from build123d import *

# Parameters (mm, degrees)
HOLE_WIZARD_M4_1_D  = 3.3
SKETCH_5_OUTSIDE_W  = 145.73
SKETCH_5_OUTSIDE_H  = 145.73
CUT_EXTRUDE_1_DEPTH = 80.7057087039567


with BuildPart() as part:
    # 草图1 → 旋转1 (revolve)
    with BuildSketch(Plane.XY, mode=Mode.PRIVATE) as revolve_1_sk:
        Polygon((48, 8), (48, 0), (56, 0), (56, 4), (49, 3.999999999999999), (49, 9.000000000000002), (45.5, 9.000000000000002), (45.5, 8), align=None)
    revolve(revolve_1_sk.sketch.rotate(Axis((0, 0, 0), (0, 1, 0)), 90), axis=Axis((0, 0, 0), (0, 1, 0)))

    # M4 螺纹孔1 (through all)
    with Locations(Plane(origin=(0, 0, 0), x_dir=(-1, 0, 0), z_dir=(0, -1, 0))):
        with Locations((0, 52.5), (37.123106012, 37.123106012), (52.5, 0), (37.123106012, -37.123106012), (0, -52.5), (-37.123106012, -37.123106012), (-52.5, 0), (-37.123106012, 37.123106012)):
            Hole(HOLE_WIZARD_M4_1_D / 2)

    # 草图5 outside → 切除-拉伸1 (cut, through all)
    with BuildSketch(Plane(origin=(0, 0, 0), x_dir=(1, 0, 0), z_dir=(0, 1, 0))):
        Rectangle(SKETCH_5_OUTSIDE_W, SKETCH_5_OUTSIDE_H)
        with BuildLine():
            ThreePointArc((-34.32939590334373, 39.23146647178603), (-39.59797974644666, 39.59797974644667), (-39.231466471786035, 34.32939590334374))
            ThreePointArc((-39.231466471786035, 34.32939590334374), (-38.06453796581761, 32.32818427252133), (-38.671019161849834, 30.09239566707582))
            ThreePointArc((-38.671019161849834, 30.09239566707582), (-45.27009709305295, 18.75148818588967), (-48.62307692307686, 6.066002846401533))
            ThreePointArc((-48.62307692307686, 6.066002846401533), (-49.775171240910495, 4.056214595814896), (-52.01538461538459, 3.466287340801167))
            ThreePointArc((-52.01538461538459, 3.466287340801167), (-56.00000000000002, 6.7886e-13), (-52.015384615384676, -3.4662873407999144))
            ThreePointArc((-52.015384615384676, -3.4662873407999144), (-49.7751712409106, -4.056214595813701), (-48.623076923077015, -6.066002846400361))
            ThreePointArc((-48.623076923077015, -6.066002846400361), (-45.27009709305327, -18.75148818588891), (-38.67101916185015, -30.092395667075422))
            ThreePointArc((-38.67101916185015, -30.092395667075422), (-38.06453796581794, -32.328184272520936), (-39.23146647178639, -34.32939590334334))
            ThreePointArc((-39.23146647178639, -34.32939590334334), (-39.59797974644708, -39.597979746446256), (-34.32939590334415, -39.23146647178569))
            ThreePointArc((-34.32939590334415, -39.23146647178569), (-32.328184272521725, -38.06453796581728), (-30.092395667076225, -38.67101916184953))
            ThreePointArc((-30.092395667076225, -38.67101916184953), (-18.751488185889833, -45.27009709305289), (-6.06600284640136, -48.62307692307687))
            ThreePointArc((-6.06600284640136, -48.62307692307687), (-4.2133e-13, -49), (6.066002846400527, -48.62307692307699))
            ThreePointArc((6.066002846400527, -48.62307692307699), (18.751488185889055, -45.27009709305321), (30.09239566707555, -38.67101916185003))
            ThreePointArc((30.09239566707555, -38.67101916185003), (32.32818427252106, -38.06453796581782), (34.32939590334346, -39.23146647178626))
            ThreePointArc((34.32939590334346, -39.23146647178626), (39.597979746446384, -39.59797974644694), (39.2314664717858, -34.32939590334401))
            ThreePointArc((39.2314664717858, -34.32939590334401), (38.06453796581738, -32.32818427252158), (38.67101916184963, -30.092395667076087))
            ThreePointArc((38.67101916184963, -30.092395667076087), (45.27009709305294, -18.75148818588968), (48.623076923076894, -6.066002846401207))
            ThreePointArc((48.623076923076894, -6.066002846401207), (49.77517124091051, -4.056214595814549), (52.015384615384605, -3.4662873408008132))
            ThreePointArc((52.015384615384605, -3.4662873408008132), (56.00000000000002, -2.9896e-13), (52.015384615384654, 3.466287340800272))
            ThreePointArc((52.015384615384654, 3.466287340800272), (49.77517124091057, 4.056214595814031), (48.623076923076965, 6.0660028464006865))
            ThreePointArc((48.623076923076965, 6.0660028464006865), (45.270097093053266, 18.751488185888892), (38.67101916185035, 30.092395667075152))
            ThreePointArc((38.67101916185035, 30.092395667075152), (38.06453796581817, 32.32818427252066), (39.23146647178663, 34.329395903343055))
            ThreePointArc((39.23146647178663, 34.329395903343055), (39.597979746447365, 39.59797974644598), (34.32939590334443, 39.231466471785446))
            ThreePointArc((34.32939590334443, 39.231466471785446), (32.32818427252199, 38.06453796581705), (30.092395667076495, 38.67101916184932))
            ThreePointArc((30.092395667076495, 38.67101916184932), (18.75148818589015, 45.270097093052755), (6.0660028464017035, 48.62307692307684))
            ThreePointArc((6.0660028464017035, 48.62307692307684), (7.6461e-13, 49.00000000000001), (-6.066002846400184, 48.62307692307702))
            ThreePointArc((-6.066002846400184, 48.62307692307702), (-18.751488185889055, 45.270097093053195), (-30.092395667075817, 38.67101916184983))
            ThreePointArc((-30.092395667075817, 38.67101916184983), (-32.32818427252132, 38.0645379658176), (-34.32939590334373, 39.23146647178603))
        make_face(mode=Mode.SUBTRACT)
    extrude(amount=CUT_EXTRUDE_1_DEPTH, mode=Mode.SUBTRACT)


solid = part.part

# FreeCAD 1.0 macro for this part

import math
import FreeCAD as App
import Part
import Sketcher

V = App.Vector
Q = App.Units.Quantity


def add_polygon(sketch, points):
    """Adds a closed chain of lines whose ends are joined by coincident constraints."""
    first, n = sketch.GeometryCount, len(points)
    for a, b in zip(points, points[1:] + points[:1]):
        sketch.addGeometry(Part.LineSegment(App.Vector(*a, 0), App.Vector(*b, 0)), False)
    for i in range(n):
        sketch.addConstraint(Sketcher.Constraint("Coincident", first + i, 2, first + (i + 1) % n, 1))

doc = App.newDocument("Part")
params = doc.addObject("Spreadsheet::Sheet", "Params")
for row, (alias, value) in enumerate([
    ("sketch1_width", "8 mm"),
    ("sketch1_width2", "7 mm"),
    ("sketch1_height", "4 mm"),
    ("sketch1_height2", "5 mm"),
    ("sketch1_width3", "3.5 mm"),
    ("revolution_angle", "360 deg"),
    ("sketch2_diameter", "3.3 mm"),
    ("hole_diameter", "3.3 mm"),
    ("sketch3_radius", "3 mm"),
    ("sketch3_radius2", "49 mm"),
    ("sketch3_radius3", "3.5 mm"),
    ("sketch3_width", "145.73 mm"),
], start=1):
    params.set(f"A{row}", alias)
    params.set(f"B{row}", "=" + value)
    params.setAlias(f"B{row}", alias)

body = doc.addObject("PartDesign::Body", "Body")

sketch1 = body.newObject("Sketcher::SketchObject", "Sketch")
sketch1.AttachmentSupport = (doc.getObject("XY_Plane"), [""])
sketch1.MapMode = "FlatFace"
add_polygon(sketch1, [(48, 8), (48, 0), (56, 0), (56, 4), (49, 4), (49, 9), (45.5, 9), (45.5, 8)])
sketch1.addConstraint(Sketcher.Constraint("Vertical", 0))
sketch1.addConstraint(Sketcher.Constraint("Horizontal", 1))
sketch1.addConstraint(Sketcher.Constraint("Vertical", 2))
sketch1.addConstraint(Sketcher.Constraint("Horizontal", 3))
sketch1.addConstraint(Sketcher.Constraint("Vertical", 4))
sketch1.addConstraint(Sketcher.Constraint("Horizontal", 5))
sketch1.addConstraint(Sketcher.Constraint("Vertical", 6))
sketch1.addConstraint(Sketcher.Constraint("Horizontal", 7))
sketch1.addConstraint(Sketcher.Constraint("PointOnObject", 0, 2, -1))
sketch1.addConstraint(Sketcher.Constraint("Equal", 1, 0))
sketch1.addConstraint(Sketcher.Constraint("DistanceX", 1, 1, 1, 2, Q("8 mm")))
sketch1.addConstraint(Sketcher.Constraint("DistanceX", 3, 2, 3, 1, Q("7 mm")))
sketch1.addConstraint(Sketcher.Constraint("DistanceY", 2, 1, 2, 2, Q("4 mm")))
sketch1.addConstraint(Sketcher.Constraint("DistanceY", 4, 1, 4, 2, Q("5 mm")))
sketch1.addConstraint(Sketcher.Constraint("DistanceX", 5, 2, 5, 1, Q("3.5 mm")))
sketch1.addConstraint(Sketcher.Constraint("DistanceX", -1, 1, 0, 2, Q("48 mm")))
sketch1.setExpression("Constraints[18]", "Params.sketch1_width")
sketch1.setExpression("Constraints[19]", "Params.sketch1_width2")
sketch1.setExpression("Constraints[20]", "Params.sketch1_height")
sketch1.setExpression("Constraints[21]", "Params.sketch1_height2")
sketch1.setExpression("Constraints[22]", "Params.sketch1_width3")
revolution = body.newObject("PartDesign::Revolution", "Revolution")
revolution.Profile = sketch1
revolution.ReferenceAxis = (sketch1, ["V_Axis"])
revolution.setExpression("Angle", "Params.revolution_angle")

sketch2 = body.newObject("Sketcher::SketchObject", "Sketch001")
sketch2.AttachmentSupport = (doc.getObject("XZ_Plane"), [""])
sketch2.MapMode = "FlatFace"
sketch2.addGeometry(Part.Circle(V(0, -52.5, 0), V(0, 0, 1), 1.65), False)
sketch2.addGeometry(Part.Circle(V(-37.123106, -37.123106, 0), V(0, 0, 1), 1.65), False)
sketch2.addGeometry(Part.Circle(V(-52.5, 0, 0), V(0, 0, 1), 1.65), False)
sketch2.addGeometry(Part.Circle(V(-37.123106, 37.123106, 0), V(0, 0, 1), 1.65), False)
sketch2.addGeometry(Part.Circle(V(0, 52.5, 0), V(0, 0, 1), 1.65), False)
sketch2.addGeometry(Part.Circle(V(37.123106, 37.123106, 0), V(0, 0, 1), 1.65), False)
sketch2.addGeometry(Part.Circle(V(52.5, 0, 0), V(0, 0, 1), 1.65), False)
sketch2.addGeometry(Part.Circle(V(37.123106, -37.123106, 0), V(0, 0, 1), 1.65), False)
sketch2.addConstraint(Sketcher.Constraint("Equal", 0, 1))
sketch2.addConstraint(Sketcher.Constraint("Equal", 1, 2))
sketch2.addConstraint(Sketcher.Constraint("Equal", 2, 3))
sketch2.addConstraint(Sketcher.Constraint("Equal", 3, 4))
sketch2.addConstraint(Sketcher.Constraint("Equal", 4, 5))
sketch2.addConstraint(Sketcher.Constraint("Equal", 5, 6))
sketch2.addConstraint(Sketcher.Constraint("Equal", 6, 7))
sketch2.addConstraint(Sketcher.Constraint("Symmetric", 0, 3, 4, 3, -1, 1))
sketch2.addConstraint(Sketcher.Constraint("Symmetric", 1, 3, 5, 3, -1, 1))
sketch2.addConstraint(Sketcher.Constraint("Symmetric", 2, 3, 6, 3, -1, 1))
sketch2.addConstraint(Sketcher.Constraint("Symmetric", 3, 3, 7, 3, -1, 1))
sketch2.addConstraint(Sketcher.Constraint("Symmetric", 3, 3, 5, 3, -2))
sketch2.addConstraint(Sketcher.Constraint("PointOnObject", 0, 3, -2))
sketch2.addConstraint(Sketcher.Constraint("PointOnObject", 2, 3, -1))
sketch2.addConstraint(Sketcher.Constraint("Diameter", 0, Q("3.3 mm")))
sketch2.addConstraint(Sketcher.Constraint("DistanceY", 0, 3, 4, 3, Q("105 mm")))
sketch2.addConstraint(Sketcher.Constraint("DistanceX", 2, 3, -1, 1, Q("52.5 mm")))
sketch2.addConstraint(Sketcher.Constraint("DistanceX", 1, 3, -1, 1, Q("37.123106 mm")))
sketch2.addConstraint(Sketcher.Constraint("DistanceY", 1, 3, -1, 1, Q("37.123106 mm")))
sketch2.setExpression("Constraints[14]", "Params.sketch2_diameter")
doc.recompute()
hole = body.newObject("PartDesign::Hole", "Hole")
hole.Profile = sketch2
hole.ThreadType = "None"
hole.setExpression("Diameter", "Params.hole_diameter")
hole.DepthType = "ThroughAll"

sketch3 = body.newObject("Sketcher::SketchObject", "Sketch002")
sketch3.AttachmentSupport = (doc.getObject("XZ_Plane"), [""])
sketch3.MapMode = "FlatFace"
add_polygon(sketch3, [(-72.865, -72.865), (-72.865, 72.865), (72.865, 72.865), (72.865, -72.865)])
sketch3.addGeometry(Part.ArcOfCircle(Part.Circle(V(-37.123106, -37.123106, 0), V(0, 0, 1), 3.5), math.radians(127.041168), math.radians(322.958832)), False)
sketch3.addGeometry(Part.ArcOfCircle(Part.Circle(V(-31.934787, -41.038633, 0), V(0, 0, 1), 3), math.radians(52.11123), math.radians(142.958832)), False)
sketch3.addGeometry(Part.ArcOfCircle(Part.Circle(V(0, 0, 0), V(0, 0, 1), 49), math.radians(-127.88877), math.radians(-52.11123)), False)
sketch3.addGeometry(Part.ArcOfCircle(Part.Circle(V(31.934787, -41.038633, 0), V(0, 0, 1), 3), math.radians(37.041168), math.radians(127.88877)), False)
sketch3.addGeometry(Part.ArcOfCircle(Part.Circle(V(37.123106, -37.123106, 0), V(0, 0, 1), 3.5), math.radians(-142.958832), math.radians(52.958832)), False)
sketch3.addGeometry(Part.ArcOfCircle(Part.Circle(V(41.038633, -31.934787, 0), V(0, 0, 1), 3), math.radians(142.11123), math.radians(232.958832)), False)
sketch3.addGeometry(Part.ArcOfCircle(Part.Circle(V(0, 0, 0), V(0, 0, 1), 49), math.radians(-37.88877), math.radians(-7.11123)), False)
sketch3.addGeometry(Part.ArcOfCircle(Part.Circle(V(51.6, -6.437391, 0), V(0, 0, 1), 3), math.radians(82.041168), math.radians(172.88877)), False)
sketch3.addGeometry(Part.ArcOfCircle(Part.Circle(V(52.5, 0, 0), V(0, 0, 1), 3.5), math.radians(-97.958832), math.radians(97.958832)), False)
sketch3.addGeometry(Part.ArcOfCircle(Part.Circle(V(51.6, 6.437391, 0), V(0, 0, 1), 3), math.radians(-172.88877), math.radians(-82.041168)), False)
sketch3.addGeometry(Part.ArcOfCircle(Part.Circle(V(0, 0, 0), V(0, 0, 1), 49), math.radians(7.11123), math.radians(37.88877)), False)
sketch3.addGeometry(Part.ArcOfCircle(Part.Circle(V(41.038633, 31.934787, 0), V(0, 0, 1), 3), math.radians(127.041168), math.radians(217.88877)), False)
sketch3.addGeometry(Part.ArcOfCircle(Part.Circle(V(37.123106, 37.123106, 0), V(0, 0, 1), 3.5), math.radians(-52.958832), math.radians(142.958832)), False)
sketch3.addGeometry(Part.ArcOfCircle(Part.Circle(V(31.934787, 41.038633, 0), V(0, 0, 1), 3), math.radians(-127.88877), math.radians(-37.041168)), False)
sketch3.addGeometry(Part.ArcOfCircle(Part.Circle(V(0, 0, 0), V(0, 0, 1), 49), math.radians(52.11123), math.radians(127.88877)), False)
sketch3.addGeometry(Part.ArcOfCircle(Part.Circle(V(-31.934787, 41.038633, 0), V(0, 0, 1), 3), math.radians(-142.958832), math.radians(-52.11123)), False)
sketch3.addGeometry(Part.ArcOfCircle(Part.Circle(V(-37.123106, 37.123106, 0), V(0, 0, 1), 3.5), math.radians(37.041168), math.radians(232.958832)), False)
sketch3.addGeometry(Part.ArcOfCircle(Part.Circle(V(-41.038633, 31.934787, 0), V(0, 0, 1), 3), math.radians(-37.88877), math.radians(52.958832)), False)
sketch3.addGeometry(Part.ArcOfCircle(Part.Circle(V(0, 0, 0), V(0, 0, 1), 49), math.radians(142.11123), math.radians(172.88877)), False)
sketch3.addGeometry(Part.ArcOfCircle(Part.Circle(V(-51.6, 6.437391, 0), V(0, 0, 1), 3), math.radians(-97.958832), math.radians(-7.11123)), False)
sketch3.addGeometry(Part.ArcOfCircle(Part.Circle(V(-52.5, 0, 0), V(0, 0, 1), 3.5), math.radians(82.041168), math.radians(277.958832)), False)
sketch3.addGeometry(Part.ArcOfCircle(Part.Circle(V(-51.6, -6.437391, 0), V(0, 0, 1), 3), math.radians(7.11123), math.radians(97.958832)), False)
sketch3.addGeometry(Part.ArcOfCircle(Part.Circle(V(0, 0, 0), V(0, 0, 1), 49), math.radians(-172.88877), math.radians(-142.11123)), False)
sketch3.addGeometry(Part.ArcOfCircle(Part.Circle(V(-41.038633, -31.934787, 0), V(0, 0, 1), 3), math.radians(-52.958832), math.radians(37.88877)), False)
sketch3.addConstraint(Sketcher.Constraint("Tangent", 4, 2, 5, 2))
sketch3.addConstraint(Sketcher.Constraint("Tangent", 5, 1, 6, 1))
sketch3.addConstraint(Sketcher.Constraint("Tangent", 6, 2, 7, 2))
sketch3.addConstraint(Sketcher.Constraint("Tangent", 7, 1, 8, 1))
sketch3.addConstraint(Sketcher.Constraint("Tangent", 8, 2, 9, 2))
sketch3.addConstraint(Sketcher.Constraint("Tangent", 9, 1, 10, 1))
sketch3.addConstraint(Sketcher.Constraint("Tangent", 10, 2, 11, 2))
sketch3.addConstraint(Sketcher.Constraint("Tangent", 11, 1, 12, 1))
sketch3.addConstraint(Sketcher.Constraint("Tangent", 12, 2, 13, 2))
sketch3.addConstraint(Sketcher.Constraint("Tangent", 13, 1, 14, 1))
sketch3.addConstraint(Sketcher.Constraint("Tangent", 14, 2, 15, 2))
sketch3.addConstraint(Sketcher.Constraint("Tangent", 15, 1, 16, 1))
sketch3.addConstraint(Sketcher.Constraint("Tangent", 16, 2, 17, 2))
sketch3.addConstraint(Sketcher.Constraint("Tangent", 17, 1, 18, 1))
sketch3.addConstraint(Sketcher.Constraint("Tangent", 18, 2, 19, 2))
sketch3.addConstraint(Sketcher.Constraint("Tangent", 19, 1, 20, 1))
sketch3.addConstraint(Sketcher.Constraint("Tangent", 20, 2, 21, 2))
sketch3.addConstraint(Sketcher.Constraint("Tangent", 21, 1, 22, 1))
sketch3.addConstraint(Sketcher.Constraint("Tangent", 22, 2, 23, 2))
sketch3.addConstraint(Sketcher.Constraint("Tangent", 23, 1, 24, 1))
sketch3.addConstraint(Sketcher.Constraint("Tangent", 24, 2, 25, 2))
sketch3.addConstraint(Sketcher.Constraint("Tangent", 25, 1, 26, 1))
sketch3.addConstraint(Sketcher.Constraint("Tangent", 26, 2, 27, 2))
sketch3.addConstraint(Sketcher.Constraint("Tangent", 27, 1, 4, 1))
sketch3.addConstraint(Sketcher.Constraint("Vertical", 0))
sketch3.addConstraint(Sketcher.Constraint("Horizontal", 1))
sketch3.addConstraint(Sketcher.Constraint("Vertical", 2))
sketch3.addConstraint(Sketcher.Constraint("Horizontal", 3))
sketch3.addConstraint(Sketcher.Constraint("Coincident", 6, 3, -1, 1))
sketch3.addConstraint(Sketcher.Constraint("Coincident", 10, 3, -1, 1))
sketch3.addConstraint(Sketcher.Constraint("Coincident", 14, 3, -1, 1))
sketch3.addConstraint(Sketcher.Constraint("Coincident", 18, 3, -1, 1))
sketch3.addConstraint(Sketcher.Constraint("Coincident", 22, 3, -1, 1))
sketch3.addConstraint(Sketcher.Constraint("Coincident", 26, 3, -1, 1))
sketch3.addConstraint(Sketcher.Constraint("Equal", 5, 7))
sketch3.addConstraint(Sketcher.Constraint("Equal", 4, 8))
sketch3.addConstraint(Sketcher.Constraint("Equal", 7, 9))
sketch3.addConstraint(Sketcher.Constraint("Equal", 6, 10))
sketch3.addConstraint(Sketcher.Constraint("Equal", 9, 11))
sketch3.addConstraint(Sketcher.Constraint("Equal", 8, 12))
sketch3.addConstraint(Sketcher.Constraint("Equal", 11, 13))
sketch3.addConstraint(Sketcher.Constraint("Equal", 10, 14))
sketch3.addConstraint(Sketcher.Constraint("Equal", 13, 15))
sketch3.addConstraint(Sketcher.Constraint("Equal", 12, 16))
sketch3.addConstraint(Sketcher.Constraint("Equal", 15, 17))
sketch3.addConstraint(Sketcher.Constraint("Equal", 14, 18))
sketch3.addConstraint(Sketcher.Constraint("Equal", 17, 19))
sketch3.addConstraint(Sketcher.Constraint("Equal", 16, 20))
sketch3.addConstraint(Sketcher.Constraint("Equal", 19, 21))
sketch3.addConstraint(Sketcher.Constraint("Equal", 18, 22))
sketch3.addConstraint(Sketcher.Constraint("Equal", 21, 23))
sketch3.addConstraint(Sketcher.Constraint("Equal", 20, 24))
sketch3.addConstraint(Sketcher.Constraint("Equal", 23, 25))
sketch3.addConstraint(Sketcher.Constraint("Equal", 22, 26))
sketch3.addConstraint(Sketcher.Constraint("Equal", 25, 27))
sketch3.addConstraint(Sketcher.Constraint("Symmetric", 4, 3, 16, 3, -1, 1))
sketch3.addConstraint(Sketcher.Constraint("Symmetric", 8, 3, 20, 3, -1, 1))
sketch3.addConstraint(Sketcher.Constraint("Symmetric", 12, 3, 24, 3, -1, 1))
sketch3.addConstraint(Sketcher.Constraint("Symmetric", 0, 2, 2, 2, -1, 1))
sketch3.addConstraint(Sketcher.Constraint("Symmetric", 4, 3, 8, 3, -2))
sketch3.addConstraint(Sketcher.Constraint("PointOnObject", 12, 3, -1))
sketch3.addConstraint(Sketcher.Constraint("Equal", 3, 0))
sketch3.addConstraint(Sketcher.Constraint("Radius", 5, Q("3 mm")))
sketch3.addConstraint(Sketcher.Constraint("Radius", 6, Q("49 mm")))
sketch3.addConstraint(Sketcher.Constraint("Radius", 4, Q("3.5 mm")))
sketch3.addConstraint(Sketcher.Constraint("DistanceX", 1, 1, 1, 2, Q("145.73 mm")))
sketch3.addConstraint(Sketcher.Constraint("DistanceX", -1, 1, 11, 3, Q("51.6 mm")))
sketch3.addConstraint(Sketcher.Constraint("DistanceX", 4, 2, 5, 1, Q("4.237 mm")))
sketch3.addConstraint(Sketcher.Constraint("DistanceY", 5, 1, -1, 1, Q("38.671019 mm")))
sketch3.setExpression("Constraints[66]", "Params.sketch3_radius")
sketch3.setExpression("Constraints[67]", "Params.sketch3_radius2")
sketch3.setExpression("Constraints[68]", "Params.sketch3_radius3")
sketch3.setExpression("Constraints[69]", "Params.sketch3_width")
pocket1 = body.newObject("PartDesign::Pocket", "Pocket")
pocket1.Profile = sketch3
pocket1.Type = "ThroughAll"

doc.recompute()
